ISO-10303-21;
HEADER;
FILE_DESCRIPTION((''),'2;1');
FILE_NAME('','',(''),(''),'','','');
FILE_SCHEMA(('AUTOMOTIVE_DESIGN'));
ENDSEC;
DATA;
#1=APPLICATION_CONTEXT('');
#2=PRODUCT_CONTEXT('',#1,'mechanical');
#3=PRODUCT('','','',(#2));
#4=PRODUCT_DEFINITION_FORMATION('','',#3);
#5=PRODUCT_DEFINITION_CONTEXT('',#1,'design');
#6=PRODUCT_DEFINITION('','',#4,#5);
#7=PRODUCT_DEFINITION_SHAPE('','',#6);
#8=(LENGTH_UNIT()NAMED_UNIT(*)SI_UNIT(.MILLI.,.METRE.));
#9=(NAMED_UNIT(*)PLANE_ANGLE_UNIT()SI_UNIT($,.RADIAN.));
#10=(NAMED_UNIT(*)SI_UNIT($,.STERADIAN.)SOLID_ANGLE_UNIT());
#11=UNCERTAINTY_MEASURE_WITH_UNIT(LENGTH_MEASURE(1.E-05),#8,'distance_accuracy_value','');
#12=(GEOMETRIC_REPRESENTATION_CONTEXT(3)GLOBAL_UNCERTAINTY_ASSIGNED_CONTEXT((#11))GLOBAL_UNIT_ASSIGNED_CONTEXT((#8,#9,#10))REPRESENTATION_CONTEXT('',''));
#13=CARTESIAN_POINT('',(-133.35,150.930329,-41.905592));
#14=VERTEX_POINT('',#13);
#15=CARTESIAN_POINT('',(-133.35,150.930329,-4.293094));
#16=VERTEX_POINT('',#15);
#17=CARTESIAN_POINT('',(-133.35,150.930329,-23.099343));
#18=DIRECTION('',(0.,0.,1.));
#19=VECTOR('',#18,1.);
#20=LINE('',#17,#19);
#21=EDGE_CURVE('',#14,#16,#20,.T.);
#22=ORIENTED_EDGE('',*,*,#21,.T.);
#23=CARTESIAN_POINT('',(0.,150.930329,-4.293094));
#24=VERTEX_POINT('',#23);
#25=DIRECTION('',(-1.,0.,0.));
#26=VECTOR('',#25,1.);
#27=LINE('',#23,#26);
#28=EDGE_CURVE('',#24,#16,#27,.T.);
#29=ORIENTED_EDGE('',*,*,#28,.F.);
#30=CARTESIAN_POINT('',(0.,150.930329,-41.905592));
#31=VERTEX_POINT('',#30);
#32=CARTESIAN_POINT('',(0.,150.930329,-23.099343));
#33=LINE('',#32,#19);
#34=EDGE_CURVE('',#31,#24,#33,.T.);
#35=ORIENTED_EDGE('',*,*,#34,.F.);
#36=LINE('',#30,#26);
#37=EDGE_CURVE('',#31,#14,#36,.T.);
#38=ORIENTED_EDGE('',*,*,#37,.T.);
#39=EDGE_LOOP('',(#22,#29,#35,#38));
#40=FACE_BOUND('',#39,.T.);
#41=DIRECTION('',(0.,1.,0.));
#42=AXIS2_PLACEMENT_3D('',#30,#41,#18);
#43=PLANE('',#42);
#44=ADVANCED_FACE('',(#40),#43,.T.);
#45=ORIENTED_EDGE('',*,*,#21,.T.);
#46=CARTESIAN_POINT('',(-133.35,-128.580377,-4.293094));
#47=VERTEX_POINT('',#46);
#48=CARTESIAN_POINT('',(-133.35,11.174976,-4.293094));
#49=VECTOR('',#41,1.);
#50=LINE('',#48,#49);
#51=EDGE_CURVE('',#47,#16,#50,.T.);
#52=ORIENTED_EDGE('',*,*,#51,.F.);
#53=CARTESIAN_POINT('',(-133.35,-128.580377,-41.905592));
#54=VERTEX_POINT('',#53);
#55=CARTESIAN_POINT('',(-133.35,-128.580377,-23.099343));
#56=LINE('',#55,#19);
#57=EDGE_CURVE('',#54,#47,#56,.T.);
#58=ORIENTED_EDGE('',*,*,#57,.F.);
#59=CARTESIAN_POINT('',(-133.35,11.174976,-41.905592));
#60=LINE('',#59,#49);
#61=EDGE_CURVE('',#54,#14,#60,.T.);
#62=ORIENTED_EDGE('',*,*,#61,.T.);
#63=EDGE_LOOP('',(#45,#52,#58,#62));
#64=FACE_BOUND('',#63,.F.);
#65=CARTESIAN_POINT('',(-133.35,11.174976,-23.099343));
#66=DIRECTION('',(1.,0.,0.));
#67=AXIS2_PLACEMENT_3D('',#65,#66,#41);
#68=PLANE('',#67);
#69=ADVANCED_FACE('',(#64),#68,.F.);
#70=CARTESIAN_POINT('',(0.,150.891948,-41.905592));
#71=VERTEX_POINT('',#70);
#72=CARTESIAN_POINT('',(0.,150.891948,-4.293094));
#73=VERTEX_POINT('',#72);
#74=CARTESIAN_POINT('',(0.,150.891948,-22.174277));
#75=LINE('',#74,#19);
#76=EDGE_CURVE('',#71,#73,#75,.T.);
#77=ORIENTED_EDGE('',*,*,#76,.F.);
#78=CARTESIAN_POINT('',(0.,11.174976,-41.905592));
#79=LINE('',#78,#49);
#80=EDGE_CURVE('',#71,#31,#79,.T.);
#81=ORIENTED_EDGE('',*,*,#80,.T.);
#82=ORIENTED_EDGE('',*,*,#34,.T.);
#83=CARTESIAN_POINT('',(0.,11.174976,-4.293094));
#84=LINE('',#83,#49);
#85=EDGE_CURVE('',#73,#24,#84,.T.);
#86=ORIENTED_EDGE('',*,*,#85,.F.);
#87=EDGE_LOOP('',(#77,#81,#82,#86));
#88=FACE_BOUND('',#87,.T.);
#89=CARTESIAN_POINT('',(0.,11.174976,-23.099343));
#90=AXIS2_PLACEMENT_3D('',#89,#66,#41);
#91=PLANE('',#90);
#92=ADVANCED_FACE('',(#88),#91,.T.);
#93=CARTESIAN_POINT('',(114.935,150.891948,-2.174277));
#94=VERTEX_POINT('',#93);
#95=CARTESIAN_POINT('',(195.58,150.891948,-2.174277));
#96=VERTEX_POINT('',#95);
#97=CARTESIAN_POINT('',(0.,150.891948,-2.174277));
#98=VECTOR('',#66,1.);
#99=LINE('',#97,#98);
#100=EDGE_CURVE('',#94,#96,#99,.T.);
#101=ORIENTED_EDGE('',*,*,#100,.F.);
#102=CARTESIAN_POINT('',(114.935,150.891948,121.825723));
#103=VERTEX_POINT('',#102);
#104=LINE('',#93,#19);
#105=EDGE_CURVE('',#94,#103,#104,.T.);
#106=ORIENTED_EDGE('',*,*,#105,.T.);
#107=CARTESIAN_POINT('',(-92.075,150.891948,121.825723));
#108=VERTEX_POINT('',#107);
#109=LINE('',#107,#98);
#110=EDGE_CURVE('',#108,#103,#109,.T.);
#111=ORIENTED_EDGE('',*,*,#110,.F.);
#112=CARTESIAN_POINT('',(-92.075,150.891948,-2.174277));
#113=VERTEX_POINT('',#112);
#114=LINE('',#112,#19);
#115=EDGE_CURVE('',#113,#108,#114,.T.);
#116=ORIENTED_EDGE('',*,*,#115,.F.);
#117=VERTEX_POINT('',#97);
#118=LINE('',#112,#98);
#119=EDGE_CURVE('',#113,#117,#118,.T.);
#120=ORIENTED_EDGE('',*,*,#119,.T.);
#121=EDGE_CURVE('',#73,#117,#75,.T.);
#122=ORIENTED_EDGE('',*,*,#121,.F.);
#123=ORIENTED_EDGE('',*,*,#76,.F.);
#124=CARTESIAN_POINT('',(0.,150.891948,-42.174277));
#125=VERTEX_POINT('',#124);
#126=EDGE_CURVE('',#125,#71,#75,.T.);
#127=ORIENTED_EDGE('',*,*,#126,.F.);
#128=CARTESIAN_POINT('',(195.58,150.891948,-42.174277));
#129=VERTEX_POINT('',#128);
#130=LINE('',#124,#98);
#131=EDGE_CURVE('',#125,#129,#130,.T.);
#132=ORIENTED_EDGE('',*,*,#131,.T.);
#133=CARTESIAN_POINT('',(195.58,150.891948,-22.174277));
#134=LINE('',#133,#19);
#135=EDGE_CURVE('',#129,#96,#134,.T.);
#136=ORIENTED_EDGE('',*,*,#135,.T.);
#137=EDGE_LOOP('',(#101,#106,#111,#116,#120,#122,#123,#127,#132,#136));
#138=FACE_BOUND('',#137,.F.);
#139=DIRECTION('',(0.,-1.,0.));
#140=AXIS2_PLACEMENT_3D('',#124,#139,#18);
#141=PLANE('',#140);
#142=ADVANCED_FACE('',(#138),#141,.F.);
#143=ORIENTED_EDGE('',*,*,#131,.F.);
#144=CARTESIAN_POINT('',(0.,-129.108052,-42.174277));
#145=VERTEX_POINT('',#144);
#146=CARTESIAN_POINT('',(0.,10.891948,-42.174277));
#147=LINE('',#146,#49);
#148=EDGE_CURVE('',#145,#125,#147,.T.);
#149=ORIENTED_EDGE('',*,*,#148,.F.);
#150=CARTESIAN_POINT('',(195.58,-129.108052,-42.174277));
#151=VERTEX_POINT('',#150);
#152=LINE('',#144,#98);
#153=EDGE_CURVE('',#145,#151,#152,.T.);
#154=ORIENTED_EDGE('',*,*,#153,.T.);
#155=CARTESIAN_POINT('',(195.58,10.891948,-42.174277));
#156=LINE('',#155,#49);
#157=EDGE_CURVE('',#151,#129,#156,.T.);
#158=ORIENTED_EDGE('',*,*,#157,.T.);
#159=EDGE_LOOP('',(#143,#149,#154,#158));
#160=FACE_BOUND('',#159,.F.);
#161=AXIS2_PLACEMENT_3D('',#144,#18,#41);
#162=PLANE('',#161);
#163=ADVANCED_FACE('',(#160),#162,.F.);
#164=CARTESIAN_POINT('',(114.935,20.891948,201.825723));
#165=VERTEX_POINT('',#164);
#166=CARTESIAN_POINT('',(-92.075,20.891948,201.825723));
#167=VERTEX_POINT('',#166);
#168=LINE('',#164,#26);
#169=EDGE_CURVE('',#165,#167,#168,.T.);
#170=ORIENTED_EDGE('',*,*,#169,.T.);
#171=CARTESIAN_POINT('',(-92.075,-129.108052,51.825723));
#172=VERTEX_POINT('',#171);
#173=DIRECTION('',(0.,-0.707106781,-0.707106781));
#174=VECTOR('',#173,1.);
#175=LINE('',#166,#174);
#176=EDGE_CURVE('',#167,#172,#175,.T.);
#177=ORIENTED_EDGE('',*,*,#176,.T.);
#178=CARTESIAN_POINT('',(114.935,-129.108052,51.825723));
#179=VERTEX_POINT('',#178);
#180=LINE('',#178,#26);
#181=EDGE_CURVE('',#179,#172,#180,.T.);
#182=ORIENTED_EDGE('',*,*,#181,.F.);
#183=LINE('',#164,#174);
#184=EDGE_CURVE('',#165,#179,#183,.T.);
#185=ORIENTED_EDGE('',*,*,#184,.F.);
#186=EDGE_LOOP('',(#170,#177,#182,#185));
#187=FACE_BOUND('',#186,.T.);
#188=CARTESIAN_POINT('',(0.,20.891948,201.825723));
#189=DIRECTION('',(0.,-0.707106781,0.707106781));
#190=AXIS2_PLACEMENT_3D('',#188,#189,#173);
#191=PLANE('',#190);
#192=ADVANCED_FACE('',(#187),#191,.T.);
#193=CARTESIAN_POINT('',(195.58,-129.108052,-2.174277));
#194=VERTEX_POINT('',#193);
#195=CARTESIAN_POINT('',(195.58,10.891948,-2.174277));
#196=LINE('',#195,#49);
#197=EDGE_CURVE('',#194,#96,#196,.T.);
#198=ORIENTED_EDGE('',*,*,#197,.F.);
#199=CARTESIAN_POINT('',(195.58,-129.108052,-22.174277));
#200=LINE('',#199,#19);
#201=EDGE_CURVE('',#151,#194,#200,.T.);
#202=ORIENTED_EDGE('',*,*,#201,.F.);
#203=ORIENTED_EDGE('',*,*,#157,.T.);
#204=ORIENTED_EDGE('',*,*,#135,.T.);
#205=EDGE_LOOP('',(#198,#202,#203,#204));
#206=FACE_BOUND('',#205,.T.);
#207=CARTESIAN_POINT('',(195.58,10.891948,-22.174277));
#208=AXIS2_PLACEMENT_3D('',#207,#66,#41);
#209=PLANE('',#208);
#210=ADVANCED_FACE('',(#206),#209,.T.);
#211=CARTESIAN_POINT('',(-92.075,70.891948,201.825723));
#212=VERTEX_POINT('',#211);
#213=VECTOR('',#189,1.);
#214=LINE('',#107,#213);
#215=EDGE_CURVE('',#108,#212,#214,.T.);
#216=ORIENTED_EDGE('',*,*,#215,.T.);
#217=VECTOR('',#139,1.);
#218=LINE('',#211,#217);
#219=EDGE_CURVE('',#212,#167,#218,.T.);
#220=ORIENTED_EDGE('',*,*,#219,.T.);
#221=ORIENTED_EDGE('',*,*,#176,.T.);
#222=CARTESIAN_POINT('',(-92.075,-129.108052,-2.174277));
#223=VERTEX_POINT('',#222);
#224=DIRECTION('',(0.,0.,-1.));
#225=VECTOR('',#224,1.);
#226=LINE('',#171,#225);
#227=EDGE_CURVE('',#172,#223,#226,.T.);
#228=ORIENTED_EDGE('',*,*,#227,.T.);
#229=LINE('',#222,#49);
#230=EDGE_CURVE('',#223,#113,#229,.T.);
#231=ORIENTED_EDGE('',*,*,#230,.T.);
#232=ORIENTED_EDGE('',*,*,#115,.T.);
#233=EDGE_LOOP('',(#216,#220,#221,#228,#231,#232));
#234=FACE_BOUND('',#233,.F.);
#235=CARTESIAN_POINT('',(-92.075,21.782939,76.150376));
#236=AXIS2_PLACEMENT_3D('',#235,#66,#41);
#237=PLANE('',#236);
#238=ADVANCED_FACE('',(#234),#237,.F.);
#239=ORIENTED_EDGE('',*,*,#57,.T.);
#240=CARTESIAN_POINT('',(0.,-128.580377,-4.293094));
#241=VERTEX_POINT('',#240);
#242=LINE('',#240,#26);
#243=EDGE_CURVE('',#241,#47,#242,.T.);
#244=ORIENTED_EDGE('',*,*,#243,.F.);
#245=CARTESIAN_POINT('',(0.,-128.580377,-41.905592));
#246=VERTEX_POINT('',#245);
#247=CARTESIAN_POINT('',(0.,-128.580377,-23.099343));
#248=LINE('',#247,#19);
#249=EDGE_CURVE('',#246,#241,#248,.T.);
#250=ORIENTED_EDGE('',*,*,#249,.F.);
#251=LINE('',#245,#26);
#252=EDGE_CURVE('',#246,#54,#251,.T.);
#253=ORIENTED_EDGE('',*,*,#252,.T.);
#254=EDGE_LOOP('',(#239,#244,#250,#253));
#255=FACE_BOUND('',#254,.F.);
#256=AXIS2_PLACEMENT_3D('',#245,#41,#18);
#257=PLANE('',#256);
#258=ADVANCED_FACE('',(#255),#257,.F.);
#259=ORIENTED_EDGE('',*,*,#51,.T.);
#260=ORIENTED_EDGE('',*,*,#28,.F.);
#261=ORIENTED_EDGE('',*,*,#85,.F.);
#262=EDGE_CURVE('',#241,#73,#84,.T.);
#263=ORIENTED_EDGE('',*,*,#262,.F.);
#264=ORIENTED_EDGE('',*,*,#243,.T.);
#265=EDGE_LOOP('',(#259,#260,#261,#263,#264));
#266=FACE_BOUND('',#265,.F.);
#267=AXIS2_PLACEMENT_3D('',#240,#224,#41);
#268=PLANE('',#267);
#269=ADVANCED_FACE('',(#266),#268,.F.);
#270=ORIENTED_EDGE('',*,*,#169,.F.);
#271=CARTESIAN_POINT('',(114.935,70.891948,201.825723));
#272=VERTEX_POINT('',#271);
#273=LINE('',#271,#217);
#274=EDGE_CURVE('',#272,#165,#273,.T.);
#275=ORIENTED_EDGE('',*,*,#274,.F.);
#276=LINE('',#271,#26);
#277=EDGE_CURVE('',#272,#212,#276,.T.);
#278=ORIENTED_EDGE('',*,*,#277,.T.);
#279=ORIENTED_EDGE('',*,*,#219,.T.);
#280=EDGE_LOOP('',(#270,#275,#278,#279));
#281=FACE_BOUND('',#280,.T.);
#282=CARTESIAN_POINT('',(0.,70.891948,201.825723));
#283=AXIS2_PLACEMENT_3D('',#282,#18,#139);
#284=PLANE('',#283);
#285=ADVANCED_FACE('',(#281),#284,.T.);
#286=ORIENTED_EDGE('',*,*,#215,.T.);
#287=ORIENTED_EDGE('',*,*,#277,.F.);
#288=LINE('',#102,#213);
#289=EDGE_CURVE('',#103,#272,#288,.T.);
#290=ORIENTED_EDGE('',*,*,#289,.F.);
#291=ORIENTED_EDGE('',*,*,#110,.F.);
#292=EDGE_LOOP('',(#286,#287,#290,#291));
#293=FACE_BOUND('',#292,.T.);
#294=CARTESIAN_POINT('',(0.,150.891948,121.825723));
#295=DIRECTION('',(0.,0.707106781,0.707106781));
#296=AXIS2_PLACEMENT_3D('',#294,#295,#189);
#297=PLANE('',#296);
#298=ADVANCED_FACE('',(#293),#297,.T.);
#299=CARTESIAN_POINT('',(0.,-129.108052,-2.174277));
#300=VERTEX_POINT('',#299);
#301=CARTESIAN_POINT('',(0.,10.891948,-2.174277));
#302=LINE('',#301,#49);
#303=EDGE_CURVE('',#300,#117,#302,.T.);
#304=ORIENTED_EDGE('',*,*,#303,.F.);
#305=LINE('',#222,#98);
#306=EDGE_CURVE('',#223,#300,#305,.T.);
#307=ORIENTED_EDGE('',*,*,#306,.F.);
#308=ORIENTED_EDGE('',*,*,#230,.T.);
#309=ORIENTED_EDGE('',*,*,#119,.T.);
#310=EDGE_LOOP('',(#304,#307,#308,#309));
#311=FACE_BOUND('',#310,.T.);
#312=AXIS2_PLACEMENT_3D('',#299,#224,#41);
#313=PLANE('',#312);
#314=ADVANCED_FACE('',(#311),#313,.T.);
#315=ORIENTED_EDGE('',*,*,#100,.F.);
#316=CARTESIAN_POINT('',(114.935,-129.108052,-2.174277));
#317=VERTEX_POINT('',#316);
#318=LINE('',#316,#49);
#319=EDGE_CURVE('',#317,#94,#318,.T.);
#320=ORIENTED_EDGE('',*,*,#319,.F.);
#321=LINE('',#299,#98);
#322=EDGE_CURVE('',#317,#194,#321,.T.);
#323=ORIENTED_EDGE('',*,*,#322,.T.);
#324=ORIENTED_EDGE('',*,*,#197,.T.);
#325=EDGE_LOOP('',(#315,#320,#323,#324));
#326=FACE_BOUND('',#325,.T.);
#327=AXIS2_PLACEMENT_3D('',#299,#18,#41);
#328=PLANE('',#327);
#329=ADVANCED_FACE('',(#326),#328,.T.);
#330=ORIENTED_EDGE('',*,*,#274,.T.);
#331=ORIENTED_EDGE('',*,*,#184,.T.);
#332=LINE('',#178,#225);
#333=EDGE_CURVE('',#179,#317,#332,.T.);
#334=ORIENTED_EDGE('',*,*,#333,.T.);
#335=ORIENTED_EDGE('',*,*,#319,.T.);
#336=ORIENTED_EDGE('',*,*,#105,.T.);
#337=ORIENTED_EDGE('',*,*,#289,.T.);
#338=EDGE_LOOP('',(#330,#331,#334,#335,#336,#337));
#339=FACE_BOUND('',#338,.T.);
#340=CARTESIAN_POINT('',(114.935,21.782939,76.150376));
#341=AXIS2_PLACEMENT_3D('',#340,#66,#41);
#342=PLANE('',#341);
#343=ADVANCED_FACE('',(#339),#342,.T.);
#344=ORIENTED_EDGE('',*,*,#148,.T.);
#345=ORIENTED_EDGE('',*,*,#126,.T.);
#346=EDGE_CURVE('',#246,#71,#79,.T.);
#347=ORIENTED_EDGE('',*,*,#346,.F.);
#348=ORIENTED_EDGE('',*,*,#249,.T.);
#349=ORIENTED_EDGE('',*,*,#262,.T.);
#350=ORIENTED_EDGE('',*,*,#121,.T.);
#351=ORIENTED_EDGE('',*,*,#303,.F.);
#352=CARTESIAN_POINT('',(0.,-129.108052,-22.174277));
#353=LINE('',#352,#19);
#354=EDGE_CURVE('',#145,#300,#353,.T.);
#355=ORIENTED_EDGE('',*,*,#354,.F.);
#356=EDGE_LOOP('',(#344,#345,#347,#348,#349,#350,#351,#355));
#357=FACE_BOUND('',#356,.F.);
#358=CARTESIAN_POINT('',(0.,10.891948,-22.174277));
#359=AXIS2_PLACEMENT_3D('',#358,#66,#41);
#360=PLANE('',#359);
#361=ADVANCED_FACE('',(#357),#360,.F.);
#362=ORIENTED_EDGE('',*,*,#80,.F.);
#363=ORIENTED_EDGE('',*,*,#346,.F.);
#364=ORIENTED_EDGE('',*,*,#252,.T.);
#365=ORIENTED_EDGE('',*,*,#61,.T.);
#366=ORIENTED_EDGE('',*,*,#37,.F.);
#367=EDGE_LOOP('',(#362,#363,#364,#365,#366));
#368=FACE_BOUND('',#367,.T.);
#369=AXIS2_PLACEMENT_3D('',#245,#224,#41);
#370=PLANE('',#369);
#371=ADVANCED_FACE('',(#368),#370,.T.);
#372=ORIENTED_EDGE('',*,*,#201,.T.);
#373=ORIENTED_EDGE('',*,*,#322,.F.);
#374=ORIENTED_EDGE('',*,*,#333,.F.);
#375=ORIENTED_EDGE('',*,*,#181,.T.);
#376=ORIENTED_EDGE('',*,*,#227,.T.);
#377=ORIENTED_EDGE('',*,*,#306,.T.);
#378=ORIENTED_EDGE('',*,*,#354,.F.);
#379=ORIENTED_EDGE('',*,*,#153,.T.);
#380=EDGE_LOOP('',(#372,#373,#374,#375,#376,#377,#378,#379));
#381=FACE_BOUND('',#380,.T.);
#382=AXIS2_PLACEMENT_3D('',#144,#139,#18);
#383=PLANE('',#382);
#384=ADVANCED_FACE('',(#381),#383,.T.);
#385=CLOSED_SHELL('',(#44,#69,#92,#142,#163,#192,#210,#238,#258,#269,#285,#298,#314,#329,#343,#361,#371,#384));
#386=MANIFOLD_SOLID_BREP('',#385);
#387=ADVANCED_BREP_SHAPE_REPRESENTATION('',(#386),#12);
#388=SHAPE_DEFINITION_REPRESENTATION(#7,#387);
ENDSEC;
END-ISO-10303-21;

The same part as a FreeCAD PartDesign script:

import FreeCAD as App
import Part
import Sketcher
from FreeCAD import Vector
Q = App.Units.Quantity

doc = App.newDocument("Part")
body = doc.addObject("PartDesign::Body", "Body")

# Sketch on YZ plane
sketch1 = body.newObject("Sketcher::SketchObject", "Sketch")
sketch1.AttachmentSupport = (doc.getObject("YZ_Plane"), [""])
sketch1.MapMode = "FlatFace"
sketch1.addGeometry([
    Part.LineSegment(Vector(-129, 52, 0), Vector(-129, -2, 0)),  # 0
    Part.LineSegment(Vector(-129, -2, 0), Vector(151, -2, 0)),  # 1
    Part.LineSegment(Vector(151, -2, 0), Vector(151, 122, 0)),  # 2
    Part.LineSegment(Vector(151, 122, 0), Vector(71, 202, 0)),  # 3
    Part.LineSegment(Vector(71, 202, 0), Vector(21, 202, 0)),  # 4
    Part.LineSegment(Vector(21, 202, 0), Vector(-129, 52, 0)),  # 5
], False)
sketch1.addConstraint([
    Sketcher.Constraint("Coincident", 0, 2, 1, 1),
    Sketcher.Constraint("Coincident", 1, 2, 2, 1),
    Sketcher.Constraint("Coincident", 2, 2, 3, 1),
    Sketcher.Constraint("Coincident", 3, 2, 4, 1),
    Sketcher.Constraint("Coincident", 4, 2, 5, 1),
    Sketcher.Constraint("Coincident", 5, 2, 0, 1),
    Sketcher.Constraint("Vertical", 0),
    Sketcher.Constraint("Horizontal", 1),
    Sketcher.Constraint("Vertical", 2),
    Sketcher.Constraint("Horizontal", 4),
    Sketcher.Constraint("Perpendicular", 3, 5),
    Sketcher.Constraint("DistanceX", 1, 1, 1, 2, 280.0),
    Sketcher.Constraint("DistanceX", 4, 2, 4, 1, 50.0),
    Sketcher.Constraint("DistanceY", 0, 2, 0, 1, 54.0),
    Sketcher.Constraint("DistanceY", 2, 1, 2, 2, 124.0),
    Sketcher.Constraint("Angle", 3, Q("135 deg")),
    Sketcher.Constraint("DistanceX", 0, 2, -1, 1, 129.108052),
    Sketcher.Constraint("DistanceY", 0, 2, -1, 1, 2.174277),
])
pad1 = body.newObject("PartDesign::Pad", "Pad")
pad1.Profile = sketch1
pad1.Length = 114.935

# Sketch on YZ plane
sketch2 = body.newObject("Sketcher::SketchObject", "Sketch001")
sketch2.AttachmentSupport = (doc.getObject("YZ_Plane"), [""])
sketch2.MapMode = "FlatFace"
sketch2.addGeometry([
    Part.LineSegment(Vector(-129, 52, 0), Vector(-129, -2, 0)),  # 0
    Part.LineSegment(Vector(-129, -2, 0), Vector(151, -2, 0)),  # 1
    Part.LineSegment(Vector(151, -2, 0), Vector(151, 122, 0)),  # 2
    Part.LineSegment(Vector(151, 122, 0), Vector(71, 202, 0)),  # 3
    Part.LineSegment(Vector(71, 202, 0), Vector(21, 202, 0)),  # 4
    Part.LineSegment(Vector(21, 202, 0), Vector(-129, 52, 0)),  # 5
], False)
sketch2.addConstraint([
    Sketcher.Constraint("Coincident", 0, 2, 1, 1),
    Sketcher.Constraint("Coincident", 1, 2, 2, 1),
    Sketcher.Constraint("Coincident", 2, 2, 3, 1),
    Sketcher.Constraint("Coincident", 3, 2, 4, 1),
    Sketcher.Constraint("Coincident", 4, 2, 5, 1),
    Sketcher.Constraint("Coincident", 5, 2, 0, 1),
    Sketcher.Constraint("Vertical", 0),
    Sketcher.Constraint("Horizontal", 1),
    Sketcher.Constraint("Vertical", 2),
    Sketcher.Constraint("Horizontal", 4),
    Sketcher.Constraint("Perpendicular", 3, 5),
    Sketcher.Constraint("DistanceX", 1, 1, 1, 2, 280.0),
    Sketcher.Constraint("DistanceX", 4, 2, 4, 1, 50.0),
    Sketcher.Constraint("DistanceY", 0, 2, 0, 1, 54.0),
    Sketcher.Constraint("DistanceY", 2, 1, 2, 2, 124.0),
    Sketcher.Constraint("Angle", 3, Q("135 deg")),
    Sketcher.Constraint("DistanceX", 0, 2, -1, 1, 129.108052),
    Sketcher.Constraint("DistanceY", 0, 2, -1, 1, 2.174277),
])
pad2 = body.newObject("PartDesign::Pad", "Pad001")
pad2.Profile = sketch2
pad2.Length = 92.075
pad2.Reversed = True

# Sketch on YZ plane
sketch3 = body.newObject("Sketcher::SketchObject", "Sketch002")
sketch3.AttachmentSupport = (doc.getObject("YZ_Plane"), [""])
sketch3.MapMode = "FlatFace"
sketch3.addGeometry([
    Part.LineSegment(Vector(-129, -2, 0), Vector(-129, -42, 0)),
    Part.LineSegment(Vector(-129, -42, 0), Vector(151, -42, 0)),
    Part.LineSegment(Vector(151, -42, 0), Vector(151, -2, 0)),
    Part.LineSegment(Vector(151, -2, 0), Vector(-129, -2, 0)),
], False)
sketch3.addConstraint([
    Sketcher.Constraint("Coincident", 0, 2, 1, 1),
    Sketcher.Constraint("Coincident", 1, 2, 2, 1),
    Sketcher.Constraint("Coincident", 2, 2, 3, 1),
    Sketcher.Constraint("Coincident", 3, 2, 0, 1),
    Sketcher.Constraint("Vertical", 0),
    Sketcher.Constraint("Horizontal", 1),
    Sketcher.Constraint("Vertical", 2),
    Sketcher.Constraint("Horizontal", 3),
    Sketcher.Constraint("DistanceX", 1, 1, 1, 2, 280.0),
    Sketcher.Constraint("DistanceY", 0, 2, 0, 1, 40.0),
    Sketcher.Constraint("DistanceX", 0, 2, -1, 1, 129.108052),
    Sketcher.Constraint("DistanceY", 0, 2, -1, 1, 42.174277),
])
pad3 = body.newObject("PartDesign::Pad", "Pad002")
pad3.Profile = sketch3
pad3.Length = 195.58

# Sketch on YZ plane
sketch4 = body.newObject("Sketcher::SketchObject", "Sketch003")
sketch4.AttachmentSupport = (doc.getObject("YZ_Plane"), [""])
sketch4.MapMode = "FlatFace"
sketch4.addGeometry([
    Part.LineSegment(Vector(-129, -4, 0), Vector(-129, -42, 0)),
    Part.LineSegment(Vector(-129, -42, 0), Vector(151, -42, 0)),
    Part.LineSegment(Vector(151, -42, 0), Vector(151, -4, 0)),
    Part.LineSegment(Vector(151, -4, 0), Vector(-129, -4, 0)),
], False)
sketch4.addConstraint([
    Sketcher.Constraint("Coincident", 0, 2, 1, 1),
    Sketcher.Constraint("Coincident", 1, 2, 2, 1),
    Sketcher.Constraint("Coincident", 2, 2, 3, 1),
    Sketcher.Constraint("Coincident", 3, 2, 0, 1),
    Sketcher.Constraint("Vertical", 0),
    Sketcher.Constraint("Horizontal", 1),
    Sketcher.Constraint("Vertical", 2),
    Sketcher.Constraint("Horizontal", 3),
    Sketcher.Constraint("DistanceY", 0, 2, 0, 1, 37.612499),
    Sketcher.Constraint("DistanceX", 1, 1, 1, 2, 279.510707),
    Sketcher.Constraint("DistanceX", -1, 1, 1, 2, 150.930329),
    Sketcher.Constraint("DistanceY", 0, 2, -1, 1, 41.905592),
])
pad4 = body.newObject("PartDesign::Pad", "Pad003")
pad4.Profile = sketch4
pad4.Length = 133.35
pad4.Reversed = True

doc.recompute()
